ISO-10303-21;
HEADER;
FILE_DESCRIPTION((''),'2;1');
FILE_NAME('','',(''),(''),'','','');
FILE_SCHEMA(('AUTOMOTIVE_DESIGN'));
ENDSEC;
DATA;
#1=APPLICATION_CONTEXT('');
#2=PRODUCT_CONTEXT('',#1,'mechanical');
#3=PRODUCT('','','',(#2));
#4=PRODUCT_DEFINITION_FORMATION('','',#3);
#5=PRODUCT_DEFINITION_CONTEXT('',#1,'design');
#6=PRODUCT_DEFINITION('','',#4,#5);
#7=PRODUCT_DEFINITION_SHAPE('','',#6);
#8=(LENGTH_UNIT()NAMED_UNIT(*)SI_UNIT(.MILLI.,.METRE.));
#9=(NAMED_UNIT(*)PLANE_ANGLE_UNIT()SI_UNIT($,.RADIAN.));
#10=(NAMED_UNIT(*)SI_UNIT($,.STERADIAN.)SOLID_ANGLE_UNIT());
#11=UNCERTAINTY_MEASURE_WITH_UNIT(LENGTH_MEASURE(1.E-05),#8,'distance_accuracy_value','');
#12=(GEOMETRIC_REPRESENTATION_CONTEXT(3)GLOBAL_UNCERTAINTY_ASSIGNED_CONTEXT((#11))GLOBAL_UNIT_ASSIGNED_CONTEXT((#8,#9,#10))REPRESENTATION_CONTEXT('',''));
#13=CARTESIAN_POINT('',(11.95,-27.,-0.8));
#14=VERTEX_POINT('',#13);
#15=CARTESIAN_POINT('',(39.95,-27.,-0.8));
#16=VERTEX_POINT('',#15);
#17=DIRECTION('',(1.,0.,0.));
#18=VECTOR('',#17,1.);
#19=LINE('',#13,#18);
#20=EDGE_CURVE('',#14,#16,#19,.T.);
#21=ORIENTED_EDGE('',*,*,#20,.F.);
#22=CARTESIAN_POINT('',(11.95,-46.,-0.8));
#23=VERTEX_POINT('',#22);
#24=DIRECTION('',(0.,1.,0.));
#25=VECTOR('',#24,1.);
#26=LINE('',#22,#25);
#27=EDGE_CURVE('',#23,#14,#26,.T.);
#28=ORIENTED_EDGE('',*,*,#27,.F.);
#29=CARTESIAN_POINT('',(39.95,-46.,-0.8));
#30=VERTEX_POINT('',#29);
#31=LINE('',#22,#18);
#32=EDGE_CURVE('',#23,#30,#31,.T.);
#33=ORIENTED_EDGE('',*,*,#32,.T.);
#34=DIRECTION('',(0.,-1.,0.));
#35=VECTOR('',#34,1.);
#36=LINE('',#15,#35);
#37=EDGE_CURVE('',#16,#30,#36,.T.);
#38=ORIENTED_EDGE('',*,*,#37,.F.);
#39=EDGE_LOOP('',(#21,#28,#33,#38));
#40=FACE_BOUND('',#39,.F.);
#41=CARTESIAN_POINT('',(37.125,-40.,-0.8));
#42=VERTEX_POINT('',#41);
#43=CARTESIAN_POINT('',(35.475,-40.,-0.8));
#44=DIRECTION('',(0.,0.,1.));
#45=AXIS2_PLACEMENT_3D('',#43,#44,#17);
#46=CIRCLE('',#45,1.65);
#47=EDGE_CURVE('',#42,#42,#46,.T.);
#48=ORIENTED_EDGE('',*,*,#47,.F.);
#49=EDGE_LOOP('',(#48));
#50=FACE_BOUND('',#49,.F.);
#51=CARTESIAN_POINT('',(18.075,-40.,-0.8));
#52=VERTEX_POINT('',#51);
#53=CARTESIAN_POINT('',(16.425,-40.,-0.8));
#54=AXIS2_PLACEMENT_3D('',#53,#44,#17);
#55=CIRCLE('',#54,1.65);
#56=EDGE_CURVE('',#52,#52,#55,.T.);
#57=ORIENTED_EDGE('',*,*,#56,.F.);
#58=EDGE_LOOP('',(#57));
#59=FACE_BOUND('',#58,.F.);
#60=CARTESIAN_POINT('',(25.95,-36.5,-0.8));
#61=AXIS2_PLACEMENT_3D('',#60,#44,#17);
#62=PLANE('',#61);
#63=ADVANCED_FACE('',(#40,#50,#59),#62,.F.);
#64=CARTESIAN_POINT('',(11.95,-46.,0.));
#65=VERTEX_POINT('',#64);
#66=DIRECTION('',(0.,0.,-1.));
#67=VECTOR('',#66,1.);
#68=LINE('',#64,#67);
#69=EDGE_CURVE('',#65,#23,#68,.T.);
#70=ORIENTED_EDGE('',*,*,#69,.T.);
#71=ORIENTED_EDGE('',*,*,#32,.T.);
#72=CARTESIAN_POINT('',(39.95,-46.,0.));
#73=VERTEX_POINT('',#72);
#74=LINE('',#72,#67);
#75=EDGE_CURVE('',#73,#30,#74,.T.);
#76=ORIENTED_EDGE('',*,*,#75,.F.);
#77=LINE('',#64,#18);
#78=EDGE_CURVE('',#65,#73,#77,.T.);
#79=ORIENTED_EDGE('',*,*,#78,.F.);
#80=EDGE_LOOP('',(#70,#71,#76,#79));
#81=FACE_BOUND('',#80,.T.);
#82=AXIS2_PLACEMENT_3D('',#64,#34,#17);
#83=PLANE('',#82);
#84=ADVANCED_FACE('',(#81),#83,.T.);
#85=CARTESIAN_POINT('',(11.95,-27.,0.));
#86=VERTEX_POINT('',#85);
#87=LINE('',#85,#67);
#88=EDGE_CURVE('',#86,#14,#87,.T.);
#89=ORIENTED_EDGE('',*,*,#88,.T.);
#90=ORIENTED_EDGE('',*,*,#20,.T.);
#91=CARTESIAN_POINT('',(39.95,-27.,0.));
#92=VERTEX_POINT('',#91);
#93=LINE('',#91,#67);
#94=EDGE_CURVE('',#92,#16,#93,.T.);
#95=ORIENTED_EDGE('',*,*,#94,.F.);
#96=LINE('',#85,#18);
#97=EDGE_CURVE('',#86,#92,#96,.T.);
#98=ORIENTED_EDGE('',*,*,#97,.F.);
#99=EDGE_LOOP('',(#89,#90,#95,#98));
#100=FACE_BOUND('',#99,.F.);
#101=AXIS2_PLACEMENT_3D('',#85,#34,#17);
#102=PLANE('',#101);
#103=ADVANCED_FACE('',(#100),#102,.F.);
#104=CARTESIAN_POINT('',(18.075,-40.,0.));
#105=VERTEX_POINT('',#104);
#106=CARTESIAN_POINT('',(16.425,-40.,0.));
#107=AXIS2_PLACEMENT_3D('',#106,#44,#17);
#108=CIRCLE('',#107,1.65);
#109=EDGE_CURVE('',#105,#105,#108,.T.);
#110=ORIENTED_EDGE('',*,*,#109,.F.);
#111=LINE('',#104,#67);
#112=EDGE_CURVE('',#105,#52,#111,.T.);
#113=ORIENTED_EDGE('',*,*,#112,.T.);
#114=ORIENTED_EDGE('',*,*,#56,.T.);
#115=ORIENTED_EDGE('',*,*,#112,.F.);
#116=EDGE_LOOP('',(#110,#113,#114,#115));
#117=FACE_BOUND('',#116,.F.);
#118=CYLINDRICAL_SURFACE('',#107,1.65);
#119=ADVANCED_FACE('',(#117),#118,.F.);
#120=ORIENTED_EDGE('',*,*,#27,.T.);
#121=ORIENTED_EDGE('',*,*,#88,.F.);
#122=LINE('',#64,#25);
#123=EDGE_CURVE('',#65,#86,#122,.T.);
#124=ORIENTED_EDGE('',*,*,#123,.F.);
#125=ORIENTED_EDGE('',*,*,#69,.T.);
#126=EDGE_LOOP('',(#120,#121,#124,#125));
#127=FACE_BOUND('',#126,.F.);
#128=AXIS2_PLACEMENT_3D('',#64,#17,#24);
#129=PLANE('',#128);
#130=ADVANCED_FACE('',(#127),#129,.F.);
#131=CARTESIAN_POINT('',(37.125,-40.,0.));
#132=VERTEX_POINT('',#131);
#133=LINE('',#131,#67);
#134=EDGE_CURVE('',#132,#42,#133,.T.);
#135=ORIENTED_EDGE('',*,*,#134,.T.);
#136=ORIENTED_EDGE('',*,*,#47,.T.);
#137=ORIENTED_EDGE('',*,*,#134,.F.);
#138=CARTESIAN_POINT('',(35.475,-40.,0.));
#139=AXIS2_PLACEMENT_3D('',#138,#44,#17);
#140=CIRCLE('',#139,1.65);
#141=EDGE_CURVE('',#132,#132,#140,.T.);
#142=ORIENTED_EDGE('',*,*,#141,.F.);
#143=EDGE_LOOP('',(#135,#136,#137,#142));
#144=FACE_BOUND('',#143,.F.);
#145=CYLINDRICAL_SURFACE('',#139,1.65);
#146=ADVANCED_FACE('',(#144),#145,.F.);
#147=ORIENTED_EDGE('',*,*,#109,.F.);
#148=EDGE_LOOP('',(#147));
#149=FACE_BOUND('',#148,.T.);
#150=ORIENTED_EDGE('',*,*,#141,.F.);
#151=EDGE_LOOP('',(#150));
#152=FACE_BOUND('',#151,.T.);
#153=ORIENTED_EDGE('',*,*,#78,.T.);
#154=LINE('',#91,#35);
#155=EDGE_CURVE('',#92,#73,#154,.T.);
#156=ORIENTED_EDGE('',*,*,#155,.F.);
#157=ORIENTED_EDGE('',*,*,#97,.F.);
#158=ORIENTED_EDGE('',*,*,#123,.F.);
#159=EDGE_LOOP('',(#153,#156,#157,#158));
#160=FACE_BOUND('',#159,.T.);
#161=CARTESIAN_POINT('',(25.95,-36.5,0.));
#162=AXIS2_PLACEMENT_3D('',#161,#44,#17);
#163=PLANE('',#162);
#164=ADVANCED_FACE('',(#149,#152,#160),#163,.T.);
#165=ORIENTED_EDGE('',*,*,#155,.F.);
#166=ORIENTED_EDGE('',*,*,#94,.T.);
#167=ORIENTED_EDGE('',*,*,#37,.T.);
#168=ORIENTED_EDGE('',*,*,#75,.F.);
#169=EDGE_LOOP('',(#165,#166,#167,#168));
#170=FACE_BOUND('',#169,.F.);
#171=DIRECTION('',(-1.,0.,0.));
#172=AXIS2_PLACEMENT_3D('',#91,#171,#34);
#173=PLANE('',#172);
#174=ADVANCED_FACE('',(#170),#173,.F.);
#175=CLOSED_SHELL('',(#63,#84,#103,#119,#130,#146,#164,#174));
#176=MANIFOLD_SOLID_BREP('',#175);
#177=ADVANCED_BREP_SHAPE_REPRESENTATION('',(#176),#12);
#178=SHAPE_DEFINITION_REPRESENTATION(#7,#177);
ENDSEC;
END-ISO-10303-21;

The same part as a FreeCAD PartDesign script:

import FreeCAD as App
import Part
import Sketcher
Q = App.Units.Quantity


def add_polygon(sketch, points):
    """Adds a closed chain of lines whose ends are joined by coincident constraints."""
    first, n = sketch.GeometryCount, len(points)
    for a, b in zip(points, points[1:] + points[:1]):
        sketch.addGeometry(Part.LineSegment(App.Vector(*a, 0), App.Vector(*b, 0)), False)
    for i in range(n):
        sketch.addConstraint(Sketcher.Constraint("Coincident", first + i, 2, first + (i + 1) % n, 1))

doc = App.newDocument("Part")
body = doc.addObject("PartDesign::Body", "Body")

sketch1 = body.newObject("Sketcher::SketchObject", "Sketch")
sketch1.AttachmentSupport = (doc.getObject("XY_Plane"), [""])
sketch1.MapMode = "FlatFace"
add_polygon(sketch1, [(11.9, -27), (11.9, -46), (40, -46), (40, -27)])
sketch1.addGeometry(Part.Circle(App.Vector(16.4, -40, 0), App.Vector(0, 0, 1), 1.6), False)
sketch1.addGeometry(Part.Circle(App.Vector(35.5, -40, 0), App.Vector(0, 0, 1), 1.6), False)
sketch1.addConstraint(Sketcher.Constraint("Vertical", 0))
sketch1.addConstraint(Sketcher.Constraint("Horizontal", 1))
sketch1.addConstraint(Sketcher.Constraint("Vertical", 2))
sketch1.addConstraint(Sketcher.Constraint("Horizontal", 3))
sketch1.addConstraint(Sketcher.Constraint("Equal", 4, 5))
sketch1.addConstraint(Sketcher.Constraint("Horizontal", 4, 3, 5, 3))
sketch1.addConstraint(Sketcher.Constraint("Diameter", 4, Q("3.3 mm")))
sketch1.addConstraint(Sketcher.Constraint("DistanceX", 1, 1, 1, 2, Q("28 mm")))
sketch1.addConstraint(Sketcher.Constraint("DistanceY", 0, 2, 0, 1, Q("19 mm")))
sketch1.addConstraint(Sketcher.Constraint("DistanceY", 4, 3, -1, 1, Q("40 mm")))
sketch1.addConstraint(Sketcher.Constraint("DistanceY", 0, 2, -1, 1, Q("46 mm")))
sketch1.addConstraint(Sketcher.Constraint("DistanceX", -1, 1, 0, 2, Q("11.95 mm")))
sketch1.addConstraint(Sketcher.Constraint("DistanceX", 4, 3, 5, 3, Q("19.05 mm")))
sketch1.addConstraint(Sketcher.Constraint("DistanceX", -1, 1, 4, 3, Q("16.425 mm")))
pad1 = body.newObject("PartDesign::Pad", "Pad")
pad1.Profile = sketch1
pad1.Length = 0.8
pad1.Reversed = True

doc.recompute()
